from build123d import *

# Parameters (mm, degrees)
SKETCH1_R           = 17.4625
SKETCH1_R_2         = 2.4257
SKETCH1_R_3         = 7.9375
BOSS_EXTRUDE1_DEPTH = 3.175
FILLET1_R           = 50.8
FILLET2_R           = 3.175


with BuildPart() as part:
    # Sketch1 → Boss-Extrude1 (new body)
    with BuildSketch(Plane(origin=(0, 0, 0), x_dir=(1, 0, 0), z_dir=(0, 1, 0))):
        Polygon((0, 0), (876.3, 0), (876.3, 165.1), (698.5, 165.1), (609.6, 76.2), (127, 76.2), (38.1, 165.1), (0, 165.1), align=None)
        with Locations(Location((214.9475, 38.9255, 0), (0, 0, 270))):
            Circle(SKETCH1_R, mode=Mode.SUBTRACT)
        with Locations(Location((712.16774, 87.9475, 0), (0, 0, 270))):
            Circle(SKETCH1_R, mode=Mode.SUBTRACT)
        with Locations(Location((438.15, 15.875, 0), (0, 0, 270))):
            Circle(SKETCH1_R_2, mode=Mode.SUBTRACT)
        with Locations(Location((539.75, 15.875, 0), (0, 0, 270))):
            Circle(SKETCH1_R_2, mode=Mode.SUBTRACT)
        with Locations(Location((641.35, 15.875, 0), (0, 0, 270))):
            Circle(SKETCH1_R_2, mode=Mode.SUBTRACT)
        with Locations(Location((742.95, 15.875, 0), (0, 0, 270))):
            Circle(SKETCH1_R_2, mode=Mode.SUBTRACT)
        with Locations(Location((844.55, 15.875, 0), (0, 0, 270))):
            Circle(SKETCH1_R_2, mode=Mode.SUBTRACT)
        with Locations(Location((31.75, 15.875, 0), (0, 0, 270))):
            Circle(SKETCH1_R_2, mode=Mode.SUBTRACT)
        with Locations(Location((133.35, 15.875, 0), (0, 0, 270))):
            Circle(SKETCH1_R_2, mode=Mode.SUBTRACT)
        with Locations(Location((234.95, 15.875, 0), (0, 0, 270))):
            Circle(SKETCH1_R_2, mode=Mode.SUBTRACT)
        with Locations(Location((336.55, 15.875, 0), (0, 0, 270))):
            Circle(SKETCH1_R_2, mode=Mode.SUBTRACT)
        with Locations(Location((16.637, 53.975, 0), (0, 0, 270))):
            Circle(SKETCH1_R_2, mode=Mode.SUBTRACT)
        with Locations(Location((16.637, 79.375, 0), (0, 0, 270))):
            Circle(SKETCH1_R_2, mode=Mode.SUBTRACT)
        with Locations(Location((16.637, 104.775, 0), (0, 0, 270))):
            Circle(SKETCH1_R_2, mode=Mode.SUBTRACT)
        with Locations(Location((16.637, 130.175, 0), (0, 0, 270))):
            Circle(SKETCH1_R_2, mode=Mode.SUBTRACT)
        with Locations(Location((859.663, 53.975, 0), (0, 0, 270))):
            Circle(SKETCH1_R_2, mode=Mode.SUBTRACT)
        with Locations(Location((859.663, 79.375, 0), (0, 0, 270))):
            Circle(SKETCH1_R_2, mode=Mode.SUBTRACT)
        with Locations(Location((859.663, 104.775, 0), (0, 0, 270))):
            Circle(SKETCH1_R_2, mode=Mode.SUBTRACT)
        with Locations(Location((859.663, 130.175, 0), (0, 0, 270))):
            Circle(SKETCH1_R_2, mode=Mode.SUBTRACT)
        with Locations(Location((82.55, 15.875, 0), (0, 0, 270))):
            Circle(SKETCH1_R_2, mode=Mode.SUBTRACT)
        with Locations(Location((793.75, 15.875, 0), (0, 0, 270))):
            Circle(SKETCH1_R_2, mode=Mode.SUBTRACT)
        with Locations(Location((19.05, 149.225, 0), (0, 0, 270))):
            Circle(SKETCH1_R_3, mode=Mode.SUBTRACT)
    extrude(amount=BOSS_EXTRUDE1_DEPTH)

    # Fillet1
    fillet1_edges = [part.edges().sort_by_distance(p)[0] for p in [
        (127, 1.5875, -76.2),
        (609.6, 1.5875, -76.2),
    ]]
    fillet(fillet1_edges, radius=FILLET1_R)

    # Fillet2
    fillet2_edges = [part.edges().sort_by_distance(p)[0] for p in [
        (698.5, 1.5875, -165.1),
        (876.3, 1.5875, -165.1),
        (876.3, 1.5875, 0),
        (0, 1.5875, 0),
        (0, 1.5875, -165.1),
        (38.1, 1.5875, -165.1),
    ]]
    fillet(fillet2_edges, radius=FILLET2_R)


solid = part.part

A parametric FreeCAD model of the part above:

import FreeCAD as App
import Part
import Sketcher

V = App.Vector
Q = App.Units.Quantity


def edges_at(feature, points):
    """Names of the edges that pass closest to the given points."""
    edges = feature.Shape.Edges
    near = lambda p: min(range(len(edges)), key=lambda i: edges[i].distToShape(Part.Vertex(*p))[0])
    return sorted({f"Edge{near(p) + 1}" for p in points})


def add_polygon(sketch, points):
    """Adds a closed chain of lines whose ends are joined by coincident constraints."""
    first, n = sketch.GeometryCount, len(points)
    for a, b in zip(points, points[1:] + points[:1]):
        sketch.addGeometry(Part.LineSegment(App.Vector(*a, 0), App.Vector(*b, 0)), False)
    for i in range(n):
        sketch.addConstraint(Sketcher.Constraint("Coincident", first + i, 2, first + (i + 1) % n, 1))

doc = App.newDocument("Part")
body = doc.addObject("PartDesign::Body", "Body")

sketch1 = doc.addObject("Sketcher::SketchObject", "Sketch")
body.addObject(sketch1)
sketch1.AttachmentSupport = (doc.XZ_Plane, [""])
sketch1.MapMode = "FlatFace"
add_polygon(sketch1, [(0, 0), (876.3, 0), (876.3, -165.1), (698.5, -165.1), (609.6, -76.2), (127, -76.2), (38.1, -165.1), (0, -165.1)])
sketch1.addGeometry(Part.Circle(V(31.8, -15.9, 0), V(0, 0, 1), 2.4), False)
sketch1.addGeometry(Part.Circle(V(82.5, -15.9, 0), V(0, 0, 1), 2.4), False)
sketch1.addGeometry(Part.Circle(V(133.3, -15.9, 0), V(0, 0, 1), 2.4), False)
sketch1.addGeometry(Part.Circle(V(214.9, -38.9, 0), V(0, 0, 1), 17.5), False)
sketch1.addGeometry(Part.Circle(V(234.9, -15.9, 0), V(0, 0, 1), 2.4), False)
sketch1.addGeometry(Part.Circle(V(336.6, -15.9, 0), V(0, 0, 1), 2.4), False)
sketch1.addGeometry(Part.Circle(V(16.6, -54, 0), V(0, 0, 1), 2.4), False)
sketch1.addGeometry(Part.Circle(V(16.6, -79.4, 0), V(0, 0, 1), 2.4), False)
sketch1.addGeometry(Part.Circle(V(438.1, -15.9, 0), V(0, 0, 1), 2.4), False)
sketch1.addGeometry(Part.Circle(V(539.8, -15.9, 0), V(0, 0, 1), 2.4), False)
sketch1.addGeometry(Part.Circle(V(641.4, -15.9, 0), V(0, 0, 1), 2.4), False)
sketch1.addGeometry(Part.Circle(V(743, -15.9, 0), V(0, 0, 1), 2.4), False)
sketch1.addGeometry(Part.Circle(V(793.8, -15.9, 0), V(0, 0, 1), 2.4), False)
sketch1.addGeometry(Part.Circle(V(844.5, -15.9, 0), V(0, 0, 1), 2.4), False)
sketch1.addGeometry(Part.Circle(V(859.7, -54, 0), V(0, 0, 1), 2.4), False)
sketch1.addGeometry(Part.Circle(V(859.7, -79.4, 0), V(0, 0, 1), 2.4), False)
sketch1.addGeometry(Part.Circle(V(16.6, -104.8, 0), V(0, 0, 1), 2.4), False)
sketch1.addGeometry(Part.Circle(V(16.6, -130.2, 0), V(0, 0, 1), 2.4), False)
sketch1.addGeometry(Part.Circle(V(19.1, -149.2, 0), V(0, 0, 1), 7.9), False)
sketch1.addGeometry(Part.Circle(V(712.2, -87.9, 0), V(0, 0, 1), 17.5), False)
sketch1.addGeometry(Part.Circle(V(859.7, -104.8, 0), V(0, 0, 1), 2.4), False)
sketch1.addGeometry(Part.Circle(V(859.7, -130.2, 0), V(0, 0, 1), 2.4), False)
sketch1.addConstraint(Sketcher.Constraint("Horizontal", 0))
sketch1.addConstraint(Sketcher.Constraint("Vertical", 1))
sketch1.addConstraint(Sketcher.Constraint("Horizontal", 2))
sketch1.addConstraint(Sketcher.Constraint("Horizontal", 4))
sketch1.addConstraint(Sketcher.Constraint("Horizontal", 6))
sketch1.addConstraint(Sketcher.Constraint("Vertical", 7))
sketch1.addConstraint(Sketcher.Constraint("Coincident", 7, 2, -1, 1))
sketch1.addConstraint(Sketcher.Constraint("Equal", 8, 9))
sketch1.addConstraint(Sketcher.Constraint("Equal", 9, 10))
sketch1.addConstraint(Sketcher.Constraint("Equal", 10, 12))
sketch1.addConstraint(Sketcher.Constraint("Equal", 12, 13))
sketch1.addConstraint(Sketcher.Constraint("Equal", 13, 14))
sketch1.addConstraint(Sketcher.Constraint("Equal", 14, 15))
sketch1.addConstraint(Sketcher.Constraint("Equal", 15, 16))
sketch1.addConstraint(Sketcher.Constraint("Equal", 16, 17))
sketch1.addConstraint(Sketcher.Constraint("Equal", 17, 18))
sketch1.addConstraint(Sketcher.Constraint("Equal", 18, 19))
sketch1.addConstraint(Sketcher.Constraint("Equal", 19, 20))
sketch1.addConstraint(Sketcher.Constraint("Equal", 20, 21))
sketch1.addConstraint(Sketcher.Constraint("Equal", 21, 22))
sketch1.addConstraint(Sketcher.Constraint("Equal", 22, 23))
sketch1.addConstraint(Sketcher.Constraint("Equal", 23, 24))
sketch1.addConstraint(Sketcher.Constraint("Equal", 24, 25))
sketch1.addConstraint(Sketcher.Constraint("Equal", 11, 27))
sketch1.addConstraint(Sketcher.Constraint("Equal", 25, 28))
sketch1.addConstraint(Sketcher.Constraint("Equal", 28, 29))
sketch1.addConstraint(Sketcher.Constraint("Perpendicular", 3, 5))
sketch1.addConstraint(Sketcher.Constraint("Horizontal", 8, 3, 9, 3))
sketch1.addConstraint(Sketcher.Constraint("Horizontal", 9, 3, 10, 3))
sketch1.addConstraint(Sketcher.Constraint("Horizontal", 10, 3, 12, 3))
sketch1.addConstraint(Sketcher.Constraint("Horizontal", 12, 3, 13, 3))
sketch1.addConstraint(Sketcher.Constraint("Horizontal", 13, 3, 16, 3))
sketch1.addConstraint(Sketcher.Constraint("Horizontal", 16, 3, 17, 3))
sketch1.addConstraint(Sketcher.Constraint("Horizontal", 17, 3, 18, 3))
sketch1.addConstraint(Sketcher.Constraint("Horizontal", 18, 3, 19, 3))
sketch1.addConstraint(Sketcher.Constraint("Horizontal", 19, 3, 20, 3))
sketch1.addConstraint(Sketcher.Constraint("Horizontal", 20, 3, 21, 3))
sketch1.addConstraint(Sketcher.Constraint("Horizontal", 14, 3, 22, 3))
sketch1.addConstraint(Sketcher.Constraint("Horizontal", 15, 3, 23, 3))
sketch1.addConstraint(Sketcher.Constraint("Horizontal", 24, 3, 28, 3))
sketch1.addConstraint(Sketcher.Constraint("Horizontal", 25, 3, 29, 3))
sketch1.addConstraint(Sketcher.Constraint("Horizontal", 2, 2, 5, 2))
sketch1.addConstraint(Sketcher.Constraint("Vertical", 14, 3, 15, 3))
sketch1.addConstraint(Sketcher.Constraint("Vertical", 22, 3, 23, 3))
sketch1.addConstraint(Sketcher.Constraint("Vertical", 15, 3, 24, 3))
sketch1.addConstraint(Sketcher.Constraint("Vertical", 24, 3, 25, 3))
sketch1.addConstraint(Sketcher.Constraint("Vertical", 23, 3, 28, 3))
sketch1.addConstraint(Sketcher.Constraint("Vertical", 28, 3, 29, 3))
sketch1.addConstraint(Sketcher.Constraint("Equal", 3, 5))
sketch1.addConstraint(Sketcher.Constraint("DistanceX", 2, 2, 2, 1, Q("7 in")))
sketch1.addConstraint(Sketcher.Constraint("DistanceX", 4, 2, 4, 1, Q("19 in")))
sketch1.addConstraint(Sketcher.Constraint("Diameter", 8, Q("0.191 in")))
sketch1.addConstraint(Sketcher.Constraint("Diameter", 11, Q("1.375 in")))
sketch1.addConstraint(Sketcher.Constraint("Diameter", 26, Q("0.625 in")))
sketch1.addConstraint(Sketcher.Constraint("DistanceX", 0, 1, 0, 2, Q("34.5 in")))
sketch1.addConstraint(Sketcher.Constraint("DistanceX", 6, 2, 6, 1, Q("1.5 in")))
sketch1.addConstraint(Sketcher.Constraint("DistanceY", 1, 2, 1, 1, Q("6.5 in")))
sketch1.addConstraint(Sketcher.Constraint("DistanceX", 8, 3, 9, 3, Q("2 in")))
sketch1.addConstraint(Sketcher.Constraint("DistanceX", 9, 3, 10, 3, Q("2 in")))
sketch1.addConstraint(Sketcher.Constraint("DistanceX", 10, 3, 12, 3, Q("4 in")))
sketch1.addConstraint(Sketcher.Constraint("DistanceX", 12, 3, 13, 3, Q("4 in")))
sketch1.addConstraint(Sketcher.Constraint("DistanceY", 15, 3, 14, 3, Q("1 in")))
sketch1.addConstraint(Sketcher.Constraint("DistanceX", 13, 3, 16, 3, Q("4 in")))
sketch1.addConstraint(Sketcher.Constraint("DistanceX", 16, 3, 17, 3, Q("4 in")))
sketch1.addConstraint(Sketcher.Constraint("DistanceX", 17, 3, 18, 3, Q("4 in")))
sketch1.addConstraint(Sketcher.Constraint("DistanceX", 18, 3, 19, 3, Q("4 in")))
sketch1.addConstraint(Sketcher.Constraint("DistanceX", 19, 3, 20, 3, Q("2 in")))
sketch1.addConstraint(Sketcher.Constraint("DistanceX", 20, 3, 21, 3, Q("2 in")))
sketch1.addConstraint(Sketcher.Constraint("DistanceY", 24, 3, 15, 3, Q("1 in")))
sketch1.addConstraint(Sketcher.Constraint("DistanceY", 25, 3, 24, 3, Q("1 in")))
sketch1.addConstraint(Sketcher.Constraint("DistanceY", 14, 3, 8, 3, Q("1.5 in")))
sketch1.addConstraint(Sketcher.Constraint("DistanceX", 26, 3, 8, 3, Q("0.5 in")))
sketch1.addConstraint(Sketcher.Constraint("DistanceX", -1, 1, 8, 3, Q("1.25 in")))
sketch1.addConstraint(Sketcher.Constraint("DistanceY", 26, 3, 25, 3, Q("0.75 in")))
sketch1.addConstraint(Sketcher.Constraint("DistanceY", 8, 3, -1, 1, Q("0.625 in")))
sketch1.addConstraint(Sketcher.Constraint("DistanceX", -1, 1, 14, 3, Q("0.655 in")))
sketch1.addConstraint(Sketcher.Constraint("DistanceX", -1, 1, 22, 3, Q("33.845 in")))
sketch1.addConstraint(Sketcher.Constraint("DistanceX", -1, 1, 11, 3, Q("8.4625 in")))
sketch1.addConstraint(Sketcher.Constraint("DistanceY", 11, 3, -1, 1, Q("1.5325 in")))
sketch1.addConstraint(Sketcher.Constraint("DistanceX", -1, 1, 27, 3, Q("28.0381 in")))
sketch1.addConstraint(Sketcher.Constraint("DistanceY", 27, 3, -1, 1, Q("3.4625 in")))
pad1 = doc.addObject("PartDesign::Pad", "Pad")
body.addObject(pad1)
pad1.Profile = sketch1
pad1.Length = Q("0.125 in")
pad1.Reversed = True
doc.recompute()

fillet = doc.addObject("PartDesign::Fillet", "Fillet")
body.addObject(fillet)
fillet.Base = (pad1, edges_at(pad1, [(127, 1.587, -76.2), (609.6, 1.587, -76.2)]))
fillet.Radius = Q("2 in")
doc.recompute()

fillet2 = doc.addObject("PartDesign::Fillet", "Fillet001")
body.addObject(fillet2)
fillet2.Base = (fillet, edges_at(fillet, [
    (698.5, 1.587, -165.1),
    (876.3, 1.587, -165.1),
    (876.3, 1.587, 0),
    (0, 1.587, 0),
    (0, 1.587, -165.1),
    (38.1, 1.587, -165.1),
]))
fillet2.Radius = Q("0.125 in")

doc.recompute()
